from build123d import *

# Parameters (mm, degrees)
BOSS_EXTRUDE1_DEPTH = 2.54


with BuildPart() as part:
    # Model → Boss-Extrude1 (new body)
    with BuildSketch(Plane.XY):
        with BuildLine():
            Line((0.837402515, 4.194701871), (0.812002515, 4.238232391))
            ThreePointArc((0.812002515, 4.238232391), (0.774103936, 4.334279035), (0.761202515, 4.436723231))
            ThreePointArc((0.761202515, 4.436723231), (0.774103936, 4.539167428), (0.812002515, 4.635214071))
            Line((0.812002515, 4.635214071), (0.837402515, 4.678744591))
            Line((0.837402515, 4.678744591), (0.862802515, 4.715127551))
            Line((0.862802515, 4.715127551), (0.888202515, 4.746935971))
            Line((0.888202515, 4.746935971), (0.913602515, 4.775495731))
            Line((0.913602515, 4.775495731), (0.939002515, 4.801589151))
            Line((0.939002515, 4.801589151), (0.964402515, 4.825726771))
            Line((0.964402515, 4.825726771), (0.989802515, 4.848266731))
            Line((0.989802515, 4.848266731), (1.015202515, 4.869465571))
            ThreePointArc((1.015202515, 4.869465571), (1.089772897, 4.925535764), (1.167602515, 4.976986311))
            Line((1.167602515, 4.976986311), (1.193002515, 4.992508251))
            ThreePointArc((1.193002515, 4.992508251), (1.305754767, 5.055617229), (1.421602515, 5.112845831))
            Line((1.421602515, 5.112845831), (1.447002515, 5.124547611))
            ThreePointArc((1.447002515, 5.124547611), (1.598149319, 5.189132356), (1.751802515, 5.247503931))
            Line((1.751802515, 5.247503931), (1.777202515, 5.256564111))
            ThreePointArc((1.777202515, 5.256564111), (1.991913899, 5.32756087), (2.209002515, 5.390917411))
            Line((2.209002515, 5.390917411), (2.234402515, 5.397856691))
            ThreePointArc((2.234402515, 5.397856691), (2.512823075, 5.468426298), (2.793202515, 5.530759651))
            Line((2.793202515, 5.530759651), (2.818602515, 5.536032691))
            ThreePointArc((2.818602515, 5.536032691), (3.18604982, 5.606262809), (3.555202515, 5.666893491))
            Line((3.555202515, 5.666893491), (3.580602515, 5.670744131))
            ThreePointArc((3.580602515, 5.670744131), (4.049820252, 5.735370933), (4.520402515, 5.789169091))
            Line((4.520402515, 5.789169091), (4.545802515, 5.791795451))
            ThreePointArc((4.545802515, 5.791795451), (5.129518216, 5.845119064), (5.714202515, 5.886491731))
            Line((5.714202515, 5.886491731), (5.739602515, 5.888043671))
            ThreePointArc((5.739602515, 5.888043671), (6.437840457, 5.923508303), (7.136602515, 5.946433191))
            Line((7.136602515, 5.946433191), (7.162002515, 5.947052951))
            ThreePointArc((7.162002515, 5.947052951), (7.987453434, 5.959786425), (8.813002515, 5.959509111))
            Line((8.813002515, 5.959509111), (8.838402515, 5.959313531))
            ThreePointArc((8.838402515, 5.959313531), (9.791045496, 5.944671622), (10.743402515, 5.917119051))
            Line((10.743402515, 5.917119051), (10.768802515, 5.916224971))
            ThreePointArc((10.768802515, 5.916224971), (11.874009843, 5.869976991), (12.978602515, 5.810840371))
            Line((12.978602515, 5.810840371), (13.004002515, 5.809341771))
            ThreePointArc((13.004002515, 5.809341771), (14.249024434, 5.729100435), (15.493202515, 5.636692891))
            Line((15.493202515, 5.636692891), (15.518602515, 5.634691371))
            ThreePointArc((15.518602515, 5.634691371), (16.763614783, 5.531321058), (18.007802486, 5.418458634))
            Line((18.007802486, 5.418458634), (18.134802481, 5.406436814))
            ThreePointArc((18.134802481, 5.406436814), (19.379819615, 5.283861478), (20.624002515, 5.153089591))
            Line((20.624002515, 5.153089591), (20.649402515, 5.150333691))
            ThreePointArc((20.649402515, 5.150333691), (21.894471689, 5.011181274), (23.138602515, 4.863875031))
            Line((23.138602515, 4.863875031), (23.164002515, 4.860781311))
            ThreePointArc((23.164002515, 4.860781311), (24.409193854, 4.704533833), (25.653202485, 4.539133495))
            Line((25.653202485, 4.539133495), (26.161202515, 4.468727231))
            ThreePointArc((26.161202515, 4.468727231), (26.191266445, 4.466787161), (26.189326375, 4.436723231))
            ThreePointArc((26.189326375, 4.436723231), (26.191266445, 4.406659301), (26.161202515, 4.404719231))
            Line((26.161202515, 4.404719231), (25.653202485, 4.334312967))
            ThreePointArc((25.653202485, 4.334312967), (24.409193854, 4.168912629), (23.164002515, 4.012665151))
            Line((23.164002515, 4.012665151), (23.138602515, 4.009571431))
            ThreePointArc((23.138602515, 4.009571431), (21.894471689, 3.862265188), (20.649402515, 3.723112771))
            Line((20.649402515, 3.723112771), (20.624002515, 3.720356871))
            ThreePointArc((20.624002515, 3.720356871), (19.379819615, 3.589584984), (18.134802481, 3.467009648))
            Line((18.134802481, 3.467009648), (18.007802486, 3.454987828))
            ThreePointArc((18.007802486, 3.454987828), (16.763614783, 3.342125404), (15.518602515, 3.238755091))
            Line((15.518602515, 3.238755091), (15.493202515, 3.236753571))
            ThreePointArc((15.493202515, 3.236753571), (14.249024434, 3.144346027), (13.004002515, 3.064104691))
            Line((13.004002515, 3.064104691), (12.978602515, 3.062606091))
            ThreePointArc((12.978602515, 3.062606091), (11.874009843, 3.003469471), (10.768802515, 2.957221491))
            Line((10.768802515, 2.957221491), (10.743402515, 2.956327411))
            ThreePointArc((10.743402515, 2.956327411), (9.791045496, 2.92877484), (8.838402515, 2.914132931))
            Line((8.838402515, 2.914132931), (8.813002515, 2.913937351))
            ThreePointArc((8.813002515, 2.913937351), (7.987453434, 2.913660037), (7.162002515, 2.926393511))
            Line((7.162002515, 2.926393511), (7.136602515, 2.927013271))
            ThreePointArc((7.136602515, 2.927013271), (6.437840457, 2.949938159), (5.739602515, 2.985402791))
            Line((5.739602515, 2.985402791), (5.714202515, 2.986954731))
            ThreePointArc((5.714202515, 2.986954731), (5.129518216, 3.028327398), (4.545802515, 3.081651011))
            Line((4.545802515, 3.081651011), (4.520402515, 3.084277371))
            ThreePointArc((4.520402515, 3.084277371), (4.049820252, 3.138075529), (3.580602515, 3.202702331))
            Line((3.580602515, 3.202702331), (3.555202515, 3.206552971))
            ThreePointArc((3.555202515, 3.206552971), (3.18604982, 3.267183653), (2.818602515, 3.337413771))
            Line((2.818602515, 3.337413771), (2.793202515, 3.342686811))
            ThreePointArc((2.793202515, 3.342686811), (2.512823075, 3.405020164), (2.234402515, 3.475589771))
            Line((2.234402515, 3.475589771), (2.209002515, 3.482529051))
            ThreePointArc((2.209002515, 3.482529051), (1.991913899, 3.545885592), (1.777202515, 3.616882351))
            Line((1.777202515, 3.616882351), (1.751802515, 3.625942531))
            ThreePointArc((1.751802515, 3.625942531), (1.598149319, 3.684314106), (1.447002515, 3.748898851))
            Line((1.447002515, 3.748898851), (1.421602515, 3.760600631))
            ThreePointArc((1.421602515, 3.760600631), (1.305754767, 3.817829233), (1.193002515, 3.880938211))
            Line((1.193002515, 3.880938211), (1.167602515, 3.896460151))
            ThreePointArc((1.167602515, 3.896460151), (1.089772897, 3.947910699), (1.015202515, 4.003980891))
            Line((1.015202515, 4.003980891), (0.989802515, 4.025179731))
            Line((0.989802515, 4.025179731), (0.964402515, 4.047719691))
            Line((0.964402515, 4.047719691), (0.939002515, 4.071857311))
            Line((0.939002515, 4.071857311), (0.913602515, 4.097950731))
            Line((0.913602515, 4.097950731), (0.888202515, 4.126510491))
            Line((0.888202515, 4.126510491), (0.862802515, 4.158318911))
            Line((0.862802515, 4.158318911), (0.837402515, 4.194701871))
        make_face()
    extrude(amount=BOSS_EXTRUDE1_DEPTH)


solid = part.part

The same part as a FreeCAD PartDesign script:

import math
import FreeCAD as App
import Part
import Sketcher
from FreeCAD import Vector
Q = App.Units.Quantity

doc = App.newDocument("Part")
body = doc.addObject("PartDesign::Body", "Body")

sketch1 = body.newObject("Sketcher::SketchObject", "Sketch")
sketch1.AttachmentSupport = (doc.getObject("XY_Plane"), [""])
sketch1.MapMode = "FlatFace"
sketch1.addGeometry([
    Part.LineSegment(Vector(0.812003, 4.238232, 0), Vector(0.837403, 4.194702, 0)),
    Part.LineSegment(Vector(0.837403, 4.194702, 0), Vector(0.862803, 4.158319, 0)),
    Part.LineSegment(Vector(0.862803, 4.158319, 0), Vector(0.888203, 4.12651, 0)),
    Part.LineSegment(Vector(0.888203, 4.12651, 0), Vector(0.913603, 4.097951, 0)),
    Part.LineSegment(Vector(0.913603, 4.097951, 0), Vector(0.939003, 4.071857, 0)),
    Part.LineSegment(Vector(0.939003, 4.071857, 0), Vector(0.964403, 4.04772, 0)),
    Part.LineSegment(Vector(0.964403, 4.04772, 0), Vector(0.989803, 4.02518, 0)),
    Part.LineSegment(Vector(0.989803, 4.02518, 0), Vector(1.015203, 4.003981, 0)),
    Part.ArcOfCircle(Part.Circle(Vector(1.977353, 5.205968, 0), Vector(0, 0, 1), 1.539645), math.radians(-128.676114), math.radians(-121.731099)),
    Part.LineSegment(Vector(1.167603, 3.89646, 0), Vector(1.193003, 3.880938, 0)),
    Part.ArcOfCircle(Part.Circle(Vector(2.476061, 6.041009, 0), Vector(0, 0, 1), 2.512399), math.radians(-120.709855), math.radians(-114.815779)),
    Part.LineSegment(Vector(1.421603, 3.760601, 0), Vector(1.447003, 3.748899, 0)),
    Part.ArcOfCircle(Part.Circle(Vector(3.106746, 7.424017, 0), Vector(0, 0, 1), 4.032523), math.radians(-114.304707), math.radians(-109.63359)),
    Part.LineSegment(Vector(1.751803, 3.625943, 0), Vector(1.777203, 3.616882, 0)),
    Part.ArcOfCircle(Part.Circle(Vector(3.89081, 9.648775, 0), Vector(0, 0, 1), 6.391483), math.radians(-109.310734), math.radians(-105.256018)),
    Part.LineSegment(Vector(2.209003, 3.482529, 0), Vector(2.234403, 3.47559, 0)),
    Part.ArcOfCircle(Part.Circle(Vector(4.767559, 12.885218, 0), Vector(0, 0, 1), 9.744639), math.radians(-105.067324), math.radians(-101.689597)),
    Part.LineSegment(Vector(2.793203, 3.342687, 0), Vector(2.818603, 3.337414, 0)),
    Part.ArcOfCircle(Part.Circle(Vector(5.696834, 17.40009, 0), Vector(0, 0, 1), 14.3542), math.radians(-101.567071), math.radians(-98.580506)),
    Part.LineSegment(Vector(3.555203, 3.206553, 0), Vector(3.580603, 3.202702, 0)),
    Part.ArcOfCircle(Part.Circle(Vector(6.619638, 23.531702, 0), Vector(0, 0, 1), 20.554902), math.radians(-98.502332), math.radians(-95.861735)),
    Part.LineSegment(Vector(4.520403, 3.084277, 0), Vector(4.545803, 3.081651, 0)),
    Part.ArcOfCircle(Part.Circle(Vector(7.444287, 31.588857, 0), Vector(0, 0, 1), 28.65418), math.radians(-95.805626), math.radians(-93.461515)),
    Part.LineSegment(Vector(5.714203, 2.986955, 0), Vector(5.739603, 2.985403, 0)),
    Part.ArcOfCircle(Part.Circle(Vector(8.064204, 41.861543, 0), Vector(0, 0, 1), 38.945578), math.radians(-93.421931), math.radians(-91.364794)),
    Part.LineSegment(Vector(7.136603, 2.927013, 0), Vector(7.162003, 2.926394, 0)),
    Part.ArcOfCircle(Part.Circle(Vector(8.382633, 55.292699, 0), Vector(0, 0, 1), 52.38053), math.radians(-91.335292), math.radians(-89.529241)),
    Part.LineSegment(Vector(8.813003, 2.913937, 0), Vector(8.838403, 2.914133, 0)),
    Part.ArcOfCircle(Part.Circle(Vector(8.234499, 73.203864, 0), Vector(0, 0, 1), 70.292325), math.radians(-89.507748), math.radians(-87.95454)),
    Part.LineSegment(Vector(10.743403, 2.956327, 0), Vector(10.768803, 2.957221, 0)),
    Part.ArcOfCircle(Part.Circle(Vector(7.356722, 97.726073, 0), Vector(0, 0, 1), 94.830256), math.radians(-87.937999), math.radians(-86.601306)),
    Part.LineSegment(Vector(12.978603, 3.062606, 0), Vector(13.004003, 3.064105, 0)),
    Part.ArcOfCircle(Part.Circle(Vector(5.417845, 130.469653, 0), Vector(0, 0, 1), 127.631201), math.radians(-86.592439), math.radians(-85.472293)),
    Part.LineSegment(Vector(15.493203, 3.236754, 0), Vector(15.518603, 3.238755, 0)),
    Part.ArcOfCircle(Part.Circle(Vector(2.587254, 166.535712, 0), Vector(0, 0, 1), 163.808168), math.radians(-85.472244), math.radians(-84.5983)),
    Part.LineSegment(Vector(18.007802, 3.454988, 0), Vector(18.134802, 3.46701, 0)),
    Part.ArcOfCircle(Part.Circle(Vector(0.144938, 192.577122, 0), Vector(0, 0, 1), 189.963864), math.radians(-84.56586), math.radians(-83.811198)),
    Part.LineSegment(Vector(20.624003, 3.720357, 0), Vector(20.649403, 3.723113, 0)),
    Part.ArcOfCircle(Part.Circle(Vector(0.031712, 193.840046, 0), Vector(0, 0, 1), 191.231633), math.radians(-83.810609), math.radians(-83.059881)),
    Part.LineSegment(Vector(23.138603, 4.009571, 0), Vector(23.164003, 4.012665, 0)),
    Part.ArcOfCircle(Part.Circle(Vector(2.540167, 173.411103, 0), Vector(0, 0, 1), 170.64927), math.radians(-83.058544), math.radians(-82.215835)),
    Part.LineSegment(Vector(25.653202, 4.334313, 0), Vector(26.161203, 4.404719, 0)),
    Part.ArcOfCircle(Part.Circle(Vector(26.175264, 4.420721, 0), Vector(0, 0, 1), 0.021303), math.radians(-131.307738), math.radians(48.692262)),
    Part.ArcOfCircle(Part.Circle(Vector(26.175264, 4.452725, 0), Vector(0, 0, 1), 0.021303), math.radians(-48.692262), math.radians(131.307738)),
    Part.LineSegment(Vector(26.161203, 4.468727, 0), Vector(25.653202, 4.539133, 0)),
    Part.ArcOfCircle(Part.Circle(Vector(2.540167, -164.537656, 0), Vector(0, 0, 1), 170.64927), math.radians(82.215835), math.radians(83.058544)),
    Part.LineSegment(Vector(23.164003, 4.860781, 0), Vector(23.138603, 4.863875, 0)),
    Part.ArcOfCircle(Part.Circle(Vector(0.031712, -184.966599, 0), Vector(0, 0, 1), 191.231633), math.radians(83.059881), math.radians(83.810609)),
    Part.LineSegment(Vector(20.649403, 5.150334, 0), Vector(20.624003, 5.15309, 0)),
    Part.ArcOfCircle(Part.Circle(Vector(0.144938, -183.703675, 0), Vector(0, 0, 1), 189.963864), math.radians(83.811198), math.radians(84.56586)),
    Part.LineSegment(Vector(18.134802, 5.406437, 0), Vector(18.007802, 5.418459, 0)),
    Part.ArcOfCircle(Part.Circle(Vector(2.587254, -157.662265, 0), Vector(0, 0, 1), 163.808168), math.radians(84.5983), math.radians(85.472244)),
    Part.LineSegment(Vector(15.518603, 5.634691, 0), Vector(15.493203, 5.636693, 0)),
    Part.ArcOfCircle(Part.Circle(Vector(5.417845, -121.596206, 0), Vector(0, 0, 1), 127.631201), math.radians(85.472293), math.radians(86.592439)),
    Part.LineSegment(Vector(13.004003, 5.809342, 0), Vector(12.978603, 5.81084, 0)),
    Part.ArcOfCircle(Part.Circle(Vector(7.356722, -88.852626, 0), Vector(0, 0, 1), 94.830256), math.radians(86.601306), math.radians(87.937999)),
    Part.LineSegment(Vector(10.768803, 5.916225, 0), Vector(10.743403, 5.917119, 0)),
    Part.ArcOfCircle(Part.Circle(Vector(8.234499, -64.330417, 0), Vector(0, 0, 1), 70.292325), math.radians(87.95454), math.radians(89.507748)),
    Part.LineSegment(Vector(8.838403, 5.959314, 0), Vector(8.813003, 5.959509, 0)),
    Part.ArcOfCircle(Part.Circle(Vector(8.382633, -46.419252, 0), Vector(0, 0, 1), 52.38053), math.radians(89.529241), math.radians(91.335292)),
    Part.LineSegment(Vector(7.162003, 5.947053, 0), Vector(7.136603, 5.946433, 0)),
    Part.ArcOfCircle(Part.Circle(Vector(8.064204, -32.988096, 0), Vector(0, 0, 1), 38.945578), math.radians(91.364794), math.radians(93.421931)),
    Part.LineSegment(Vector(5.739603, 5.888044, 0), Vector(5.714203, 5.886492, 0)),
    Part.ArcOfCircle(Part.Circle(Vector(7.444287, -22.715411, 0), Vector(0, 0, 1), 28.65418), math.radians(93.461515), math.radians(95.805626)),
    Part.LineSegment(Vector(4.545803, 5.791795, 0), Vector(4.520403, 5.789169, 0)),
    Part.ArcOfCircle(Part.Circle(Vector(6.619638, -14.658256, 0), Vector(0, 0, 1), 20.554902), math.radians(95.861735), math.radians(98.502332)),
    Part.LineSegment(Vector(3.580603, 5.670744, 0), Vector(3.555203, 5.666893, 0)),
    Part.ArcOfCircle(Part.Circle(Vector(5.696834, -8.526643, 0), Vector(0, 0, 1), 14.3542), math.radians(98.580506), math.radians(101.567071)),
    Part.LineSegment(Vector(2.818603, 5.536033, 0), Vector(2.793203, 5.53076, 0)),
    Part.ArcOfCircle(Part.Circle(Vector(4.767559, -4.011772, 0), Vector(0, 0, 1), 9.744639), math.radians(101.689597), math.radians(105.067324)),
    Part.LineSegment(Vector(2.234403, 5.397857, 0), Vector(2.209003, 5.390917, 0)),
    Part.ArcOfCircle(Part.Circle(Vector(3.89081, -0.775328, 0), Vector(0, 0, 1), 6.391483), math.radians(105.256018), math.radians(109.310734)),
    Part.LineSegment(Vector(1.777203, 5.256564, 0), Vector(1.751803, 5.247504, 0)),
    Part.ArcOfCircle(Part.Circle(Vector(3.106746, 1.449429, 0), Vector(0, 0, 1), 4.032523), math.radians(109.63359), math.radians(114.304707)),
    Part.LineSegment(Vector(1.447003, 5.124548, 0), Vector(1.421603, 5.112846, 0)),
    Part.ArcOfCircle(Part.Circle(Vector(2.476061, 2.832437, 0), Vector(0, 0, 1), 2.512399), math.radians(114.815779), math.radians(120.709855)),
    Part.LineSegment(Vector(1.193003, 4.992508, 0), Vector(1.167603, 4.976986, 0)),
    Part.ArcOfCircle(Part.Circle(Vector(1.977353, 3.667479, 0), Vector(0, 0, 1), 1.539644), math.radians(121.731098), math.radians(128.676115)),
    Part.LineSegment(Vector(1.015203, 4.869466, 0), Vector(0.989803, 4.848267, 0)),
    Part.LineSegment(Vector(0.989803, 4.848267, 0), Vector(0.964403, 4.825727, 0)),
    Part.LineSegment(Vector(0.964403, 4.825727, 0), Vector(0.939003, 4.801589, 0)),
    Part.LineSegment(Vector(0.939003, 4.801589, 0), Vector(0.913603, 4.775496, 0)),
    Part.LineSegment(Vector(0.913603, 4.775496, 0), Vector(0.888203, 4.746936, 0)),
    Part.LineSegment(Vector(0.888203, 4.746936, 0), Vector(0.862803, 4.715128, 0)),
    Part.LineSegment(Vector(0.862803, 4.715128, 0), Vector(0.837403, 4.678745, 0)),
    Part.LineSegment(Vector(0.837403, 4.678745, 0), Vector(0.812003, 4.635214, 0)),
    Part.ArcOfCircle(Part.Circle(Vector(1.174384, 4.436723, 0), Vector(0, 0, 1), 0.413182), math.radians(151.288726), math.radians(180)),
    Part.ArcOfCircle(Part.Circle(Vector(1.174384, 4.436723, 0), Vector(0, 0, 1), 0.413182), math.radians(-180), math.radians(-151.288726)),
], False)
sketch1.addConstraint([
    Sketcher.Constraint("Coincident", 0, 2, 1, 1),
    Sketcher.Constraint("Coincident", 1, 2, 2, 1),
    Sketcher.Constraint("Coincident", 2, 2, 3, 1),
    Sketcher.Constraint("Coincident", 3, 2, 4, 1),
    Sketcher.Constraint("Coincident", 4, 2, 5, 1),
    Sketcher.Constraint("Coincident", 5, 2, 6, 1),
    Sketcher.Constraint("Coincident", 6, 2, 7, 1),
    Sketcher.Constraint("Coincident", 7, 2, 8, 1),
    Sketcher.Constraint("Coincident", 8, 2, 9, 1),
    Sketcher.Constraint("Coincident", 9, 2, 10, 1),
    Sketcher.Constraint("Coincident", 10, 2, 11, 1),
    Sketcher.Constraint("Coincident", 11, 2, 12, 1),
    Sketcher.Constraint("Coincident", 12, 2, 13, 1),
    Sketcher.Constraint("Coincident", 13, 2, 14, 1),
    Sketcher.Constraint("Coincident", 14, 2, 15, 1),
    Sketcher.Constraint("Coincident", 15, 2, 16, 1),
    Sketcher.Constraint("Coincident", 16, 2, 17, 1),
    Sketcher.Constraint("Coincident", 17, 2, 18, 1),
    Sketcher.Constraint("Coincident", 18, 2, 19, 1),
    Sketcher.Constraint("Coincident", 19, 2, 20, 1),
    Sketcher.Constraint("Coincident", 20, 2, 21, 1),
    Sketcher.Constraint("Coincident", 21, 2, 22, 1),
    Sketcher.Constraint("Coincident", 22, 2, 23, 1),
    Sketcher.Constraint("Coincident", 23, 2, 24, 1),
    Sketcher.Constraint("Coincident", 24, 2, 25, 1),
    Sketcher.Constraint("Coincident", 25, 2, 26, 1),
    Sketcher.Constraint("Coincident", 26, 2, 27, 1),
    Sketcher.Constraint("Coincident", 27, 2, 28, 1),
    Sketcher.Constraint("Coincident", 28, 2, 29, 1),
    Sketcher.Constraint("Coincident", 29, 2, 30, 1),
    Sketcher.Constraint("Coincident", 30, 2, 31, 1),
    Sketcher.Constraint("Coincident", 31, 2, 32, 1),
    Sketcher.Constraint("Coincident", 32, 2, 33, 1),
    Sketcher.Constraint("Coincident", 33, 2, 34, 1),
    Sketcher.Constraint("Coincident", 34, 2, 35, 1),
    Sketcher.Constraint("Coincident", 35, 2, 36, 1),
    Sketcher.Constraint("Coincident", 36, 2, 37, 1),
    Sketcher.Constraint("Coincident", 37, 2, 38, 1),
    Sketcher.Constraint("Coincident", 38, 2, 39, 1),
    Sketcher.Constraint("Coincident", 39, 2, 40, 1),
    Sketcher.Constraint("Coincident", 40, 2, 41, 1),
    Sketcher.Constraint("Coincident", 41, 2, 42, 1),
    Sketcher.Constraint("Coincident", 42, 2, 43, 1),
    Sketcher.Constraint("Coincident", 43, 2, 44, 1),
    Sketcher.Constraint("Coincident", 44, 2, 45, 1),
    Sketcher.Constraint("Coincident", 45, 2, 46, 1),
    Sketcher.Constraint("Coincident", 46, 2, 47, 1),
    Sketcher.Constraint("Coincident", 47, 2, 48, 1),
    Sketcher.Constraint("Coincident", 48, 2, 49, 1),
    Sketcher.Constraint("Coincident", 49, 2, 50, 1),
    Sketcher.Constraint("Coincident", 50, 2, 51, 1),
    Sketcher.Constraint("Coincident", 51, 2, 52, 1),
    Sketcher.Constraint("Coincident", 52, 2, 53, 1),
    Sketcher.Constraint("Coincident", 53, 2, 54, 1),
    Sketcher.Constraint("Coincident", 54, 2, 55, 1),
    Sketcher.Constraint("Coincident", 55, 2, 56, 1),
    Sketcher.Constraint("Coincident", 56, 2, 57, 1),
    Sketcher.Constraint("Coincident", 57, 2, 58, 1),
    Sketcher.Constraint("Coincident", 58, 2, 59, 1),
    Sketcher.Constraint("Coincident", 59, 2, 60, 1),
    Sketcher.Constraint("Coincident", 60, 2, 61, 1),
    Sketcher.Constraint("Coincident", 61, 2, 62, 1),
    Sketcher.Constraint("Coincident", 62, 2, 63, 1),
    Sketcher.Constraint("Coincident", 63, 2, 64, 1),
    Sketcher.Constraint("Coincident", 64, 2, 65, 1),
    Sketcher.Constraint("Coincident", 65, 2, 66, 1),
    Sketcher.Constraint("Coincident", 66, 2, 67, 1),
    Sketcher.Constraint("Coincident", 67, 2, 68, 1),
    Sketcher.Constraint("Coincident", 68, 2, 69, 1),
    Sketcher.Constraint("Coincident", 69, 2, 70, 1),
    Sketcher.Constraint("Coincident", 70, 2, 71, 1),
    Sketcher.Constraint("Coincident", 71, 2, 72, 1),
    Sketcher.Constraint("Coincident", 72, 2, 73, 1),
    Sketcher.Constraint("Coincident", 73, 2, 74, 1),
    Sketcher.Constraint("Coincident", 74, 2, 75, 1),
    Sketcher.Constraint("Coincident", 75, 2, 76, 1),
    Sketcher.Constraint("Coincident", 76, 2, 77, 1),
    Sketcher.Constraint("Coincident", 77, 2, 78, 1),
    Sketcher.Constraint("Coincident", 78, 2, 79, 1),
    Sketcher.Constraint("Coincident", 79, 2, 80, 1),
    Sketcher.Constraint("Coincident", 80, 2, 81, 1),
    Sketcher.Constraint("Coincident", 81, 2, 82, 1),
    Sketcher.Constraint("Coincident", 82, 2, 83, 1),
    Sketcher.Constraint("Coincident", 83, 2, 84, 1),
    Sketcher.Constraint("Coincident", 84, 2, 85, 1),
    Sketcher.Constraint("Coincident", 85, 2, 86, 1),
    Sketcher.Constraint("Tangent", 86, 2, 87, 1),
    Sketcher.Constraint("Coincident", 87, 2, 0, 1),
    Sketcher.Constraint("Equal", 42, 43),
    Sketcher.Constraint("Equal", 40, 45),
    Sketcher.Constraint("Equal", 38, 47),
    Sketcher.Constraint("Equal", 36, 49),
    Sketcher.Constraint("Equal", 34, 51),
    Sketcher.Constraint("Equal", 32, 53),
    Sketcher.Constraint("Equal", 30, 55),
    Sketcher.Constraint("Equal", 28, 57),
    Sketcher.Constraint("Equal", 26, 59),
    Sketcher.Constraint("Equal", 24, 61),
    Sketcher.Constraint("Equal", 22, 63),
    Sketcher.Constraint("Equal", 20, 65),
    Sketcher.Constraint("Equal", 18, 67),
    Sketcher.Constraint("Equal", 16, 69),
    Sketcher.Constraint("Equal", 14, 71),
    Sketcher.Constraint("Equal", 12, 73),
    Sketcher.Constraint("Equal", 10, 75),
    Sketcher.Constraint("Equal", 8, 77),
    Sketcher.Constraint("Equal", 86, 87),
    Sketcher.Constraint("Horizontal", 87, 3, 42, 2),
    Sketcher.Constraint("Horizontal", 42, 2, 86, 2),
    Sketcher.Constraint("Vertical", 42, 3, 43, 3),
    Sketcher.Constraint("Vertical", 40, 3, 45, 3),
    Sketcher.Constraint("Vertical", 38, 3, 47, 3),
    Sketcher.Constraint("Vertical", 36, 3, 49, 3),
    Sketcher.Constraint("Vertical", 34, 3, 51, 3),
    Sketcher.Constraint("Vertical", 32, 3, 53, 3),
    Sketcher.Constraint("Vertical", 30, 3, 55, 3),
    Sketcher.Constraint("Vertical", 28, 3, 57, 3),
    Sketcher.Constraint("Vertical", 26, 3, 59, 3),
    Sketcher.Constraint("Vertical", 24, 3, 61, 3),
    Sketcher.Constraint("Vertical", 22, 3, 63, 3),
    Sketcher.Constraint("Vertical", 20, 3, 65, 3),
    Sketcher.Constraint("Vertical", 18, 3, 67, 3),
    Sketcher.Constraint("Vertical", 16, 3, 69, 3),
    Sketcher.Constraint("Vertical", 14, 3, 71, 3),
    Sketcher.Constraint("Vertical", 12, 3, 73, 3),
    Sketcher.Constraint("Vertical", 10, 3, 75, 3),
    Sketcher.Constraint("Vertical", 8, 3, 77, 3),
    Sketcher.Constraint("Vertical", 41, 2, 43, 2),
    Sketcher.Constraint("Vertical", 40, 2, 44, 2),
    Sketcher.Constraint("Vertical", 39, 2, 45, 2),
    Sketcher.Constraint("Vertical", 38, 2, 46, 2),
    Sketcher.Constraint("Vertical", 37, 2, 47, 2),
    Sketcher.Constraint("Vertical", 36, 2, 48, 2),
    Sketcher.Constraint("Vertical", 35, 2, 49, 2),
    Sketcher.Constraint("Vertical", 34, 2, 50, 2),
    Sketcher.Constraint("Vertical", 33, 2, 51, 2),
    Sketcher.Constraint("Vertical", 32, 2, 52, 2),
    Sketcher.Constraint("Vertical", 31, 2, 53, 2),
    Sketcher.Constraint("Vertical", 30, 2, 54, 2),
    Sketcher.Constraint("Vertical", 29, 2, 55, 2),
    Sketcher.Constraint("Vertical", 28, 2, 56, 2),
    Sketcher.Constraint("Vertical", 27, 2, 57, 2),
    Sketcher.Constraint("Vertical", 26, 2, 58, 2),
    Sketcher.Constraint("Vertical", 25, 2, 59, 2),
    Sketcher.Constraint("Vertical", 24, 2, 60, 2),
    Sketcher.Constraint("Vertical", 23, 2, 61, 2),
    Sketcher.Constraint("Vertical", 22, 2, 62, 2),
    Sketcher.Constraint("Vertical", 21, 2, 63, 2),
    Sketcher.Constraint("Vertical", 20, 2, 64, 2),
    Sketcher.Constraint("Vertical", 19, 2, 65, 2),
    Sketcher.Constraint("Vertical", 18, 2, 66, 2),
    Sketcher.Constraint("Vertical", 17, 2, 67, 2),
    Sketcher.Constraint("Vertical", 16, 2, 68, 2),
    Sketcher.Constraint("Vertical", 15, 2, 69, 2),
    Sketcher.Constraint("Vertical", 14, 2, 70, 2),
    Sketcher.Constraint("Vertical", 13, 2, 71, 2),
    Sketcher.Constraint("Vertical", 12, 2, 72, 2),
    Sketcher.Constraint("Vertical", 11, 2, 73, 2),
    Sketcher.Constraint("Vertical", 10, 2, 74, 2),
    Sketcher.Constraint("Vertical", 9, 2, 75, 2),
    Sketcher.Constraint("Vertical", 8, 2, 76, 2),
    Sketcher.Constraint("Vertical", 7, 2, 77, 2),
    Sketcher.Constraint("Vertical", 6, 2, 78, 2),
    Sketcher.Constraint("Vertical", 5, 2, 79, 2),
    Sketcher.Constraint("Vertical", 4, 2, 80, 2),
    Sketcher.Constraint("Vertical", 3, 2, 81, 2),
    Sketcher.Constraint("Vertical", 2, 2, 82, 2),
    Sketcher.Constraint("Vertical", 1, 2, 83, 2),
    Sketcher.Constraint("Vertical", 0, 2, 84, 2),
    Sketcher.Constraint("Vertical", 85, 2, 87, 2),
    Sketcher.Constraint("Equal", 41, 44),
    Sketcher.Constraint("Equal", 39, 46),
    Sketcher.Constraint("Equal", 37, 48),
    Sketcher.Constraint("Equal", 35, 50),
    Sketcher.Constraint("Equal", 33, 52),
    Sketcher.Constraint("Equal", 31, 54),
    Sketcher.Constraint("Equal", 29, 56),
    Sketcher.Constraint("Equal", 27, 58),
    Sketcher.Constraint("Equal", 25, 60),
    Sketcher.Constraint("Equal", 23, 62),
    Sketcher.Constraint("Equal", 21, 64),
    Sketcher.Constraint("Equal", 19, 66),
    Sketcher.Constraint("Equal", 17, 68),
    Sketcher.Constraint("Equal", 15, 70),
    Sketcher.Constraint("Equal", 13, 72),
    Sketcher.Constraint("Equal", 11, 74),
    Sketcher.Constraint("Equal", 9, 76),
    Sketcher.Constraint("Equal", 7, 78),
    Sketcher.Constraint("Equal", 6, 79),
    Sketcher.Constraint("Equal", 5, 80),
    Sketcher.Constraint("Equal", 4, 81),
    Sketcher.Constraint("Equal", 3, 82),
    Sketcher.Constraint("Equal", 2, 83),
    Sketcher.Constraint("Equal", 1, 84),
    Sketcher.Constraint("Angle", 1, Q("-55.079989 deg")),
    Sketcher.Constraint("Radius", 10, Q("2.512399 mm")),
    Sketcher.Constraint("Radius", 18, Q("14.3542 mm")),
    Sketcher.Constraint("Radius", 20, Q("20.554902 mm")),
    Sketcher.Constraint("Radius", 32, Q("127.631201 mm")),
    Sketcher.Constraint("Distance", 27, Q("0.001 in")),
    Sketcher.Constraint("Radius", 16, Q("9.744639 mm")),
    Sketcher.Constraint("Radius", 22, Q("28.65418 mm")),
    Sketcher.Constraint("Radius", 26, Q("52.38053 mm")),
    Sketcher.Constraint("Radius", 40, Q("170.64927 mm")),
    Sketcher.Constraint("Radius", 86, Q("0.413182 mm")),
    Sketcher.Constraint("Radius", 8, Q("1.539645 mm")),
    Sketcher.Constraint("Radius", 12, Q("4.032523 mm")),
    Sketcher.Constraint("Radius", 14, Q("6.391483 mm")),
    Sketcher.Constraint("Radius", 24, Q("38.945578 mm")),
    Sketcher.Constraint("Radius", 28, Q("70.292325 mm")),
    Sketcher.Constraint("Radius", 30, Q("94.830256 mm")),
    Sketcher.Constraint("Radius", 34, Q("163.808168 mm")),
    Sketcher.Constraint("Radius", 36, Q("189.963864 mm")),
    Sketcher.Constraint("Radius", 38, Q("191.231633 mm")),
    Sketcher.Constraint("Radius", 42, Q("0.021303 mm")),
    Sketcher.Constraint("Distance", 0, Q("0.050399 mm")),
    Sketcher.Constraint("DistanceY", -1, 1, 26, 3, Q("55.292699 mm")),
    Sketcher.Constraint("DistanceX", -1, 1, 28, 3, Q("8.234499 mm")),
    Sketcher.Constraint("DistanceY", 47, 3, -1, 1, Q("184.966599 mm")),
    Sketcher.Constraint("DistanceY", -1, 1, 0, 2, Q("4.194702 mm")),
    Sketcher.Constraint("DistanceY", -1, 1, 10, 2, Q("3.760601 mm")),
    Sketcher.Constraint("DistanceY", -1, 1, 11, 2, Q("3.748899 mm")),
    Sketcher.Constraint("Distance", 3, Q("0.038221 mm")),
    Sketcher.Constraint("Distance", 5, Q("0.03504 mm")),
    Sketcher.Constraint("Distance", 6, Q("0.033959 mm")),
    Sketcher.Constraint("Distance", 15, Q("0.026331 mm")),
    Sketcher.Constraint("Distance", 17, Q("0.025942 mm")),
    Sketcher.Constraint("Distance", 19, Q("0.02569 mm")),
    Sketcher.Constraint("Distance", 33, Q("0.025479 mm")),
    Sketcher.Constraint("Distance", 37, Q("0.025549 mm")),
    Sketcher.Constraint("DistanceX", -1, 1, 10, 3, Q("2.476061 mm")),
    Sketcher.Constraint("DistanceY", -1, 1, 10, 3, Q("6.041009 mm")),
    Sketcher.Constraint("DistanceX", -1, 1, 14, 3, Q("3.89081 mm")),
    Sketcher.Constraint("DistanceX", -1, 1, 16, 3, Q("4.767559 mm")),
    Sketcher.Constraint("DistanceY", -1, 1, 16, 3, Q("12.885218 mm")),
    Sketcher.Constraint("DistanceY", -1, 1, 18, 3, Q("17.40009 mm")),
    Sketcher.Constraint("DistanceX", -1, 1, 30, 3, Q("7.356722 mm")),
    Sketcher.Constraint("DistanceY", -1, 1, 34, 3, Q("166.535712 mm")),
    Sketcher.Constraint("DistanceX", -1, 1, 36, 3, Q("0.144938 mm")),
    Sketcher.Constraint("DistanceY", -1, 1, 36, 3, Q("192.577122 mm")),
    Sketcher.Constraint("DistanceY", -1, 1, 42, 3, Q("4.420721 mm")),
    Sketcher.Constraint("DistanceY", 63, 3, -1, 1, Q("22.715411 mm")),
    Sketcher.Constraint("DistanceY", 69, 3, -1, 1, Q("4.011772 mm")),
    Sketcher.Constraint("DistanceY", 71, 3, -1, 1, Q("0.775328 mm")),
    Sketcher.Constraint("DistanceY", -1, 1, 73, 3, Q("1.449429 mm")),
    Sketcher.Constraint("DistanceY", -1, 1, 77, 3, Q("3.667479 mm")),
    Sketcher.Constraint("DistanceY", -1, 1, 1, 2, Q("4.158319 mm")),
    Sketcher.Constraint("DistanceY", -1, 1, 2, 2, Q("4.12651 mm")),
    Sketcher.Constraint("DistanceY", -1, 1, 3, 2, Q("4.097951 mm")),
    Sketcher.Constraint("DistanceY", -1, 1, 5, 2, Q("4.04772 mm")),
    Sketcher.Constraint("DistanceY", -1, 1, 6, 2, Q("4.02518 mm")),
    Sketcher.Constraint("DistanceY", -1, 1, 7, 2, Q("4.003981 mm")),
    Sketcher.Constraint("DistanceY", -1, 1, 8, 2, Q("3.89646 mm")),
    Sketcher.Constraint("DistanceY", -1, 1, 9, 2, Q("3.880938 mm")),
    Sketcher.Constraint("DistanceY", -1, 1, 14, 2, Q("3.482529 mm")),
    Sketcher.Constraint("DistanceY", -1, 1, 21, 2, Q("3.081651 mm")),
    Sketcher.Constraint("DistanceY", -1, 1, 29, 2, Q("2.957221 mm")),
    Sketcher.Constraint("DistanceY", -1, 1, 35, 2, Q("3.46701 mm")),
    Sketcher.Constraint("DistanceY", -1, 1, 38, 2, Q("4.009571 mm")),
    Sketcher.Constraint("DistanceY", -1, 1, 41, 2, Q("4.404719 mm")),
    Sketcher.Constraint("DistanceY", -1, 1, 45, 2, Q("4.860781 mm")),
    Sketcher.Constraint("DistanceY", -1, 1, 48, 2, Q("5.15309 mm")),
    Sketcher.Constraint("DistanceY", -1, 1, 50, 2, Q("5.418459 mm")),
    Sketcher.Constraint("DistanceY", -1, 1, 51, 2, Q("5.634691 mm")),
    Sketcher.Constraint("DistanceY", -1, 1, 53, 2, Q("5.809342 mm")),
    Sketcher.Constraint("DistanceY", -1, 1, 54, 2, Q("5.81084 mm")),
    Sketcher.Constraint("DistanceY", -1, 1, 56, 2, Q("5.917119 mm")),
    Sketcher.Constraint("DistanceY", -1, 1, 58, 2, Q("5.959509 mm")),
    Sketcher.Constraint("DistanceY", -1, 1, 62, 2, Q("5.886492 mm")),
    Sketcher.Constraint("DistanceY", -1, 1, 64, 2, Q("5.789169 mm")),
    Sketcher.Constraint("DistanceY", -1, 1, 68, 2, Q("5.53076 mm")),
    Sketcher.Constraint("DistanceY", -1, 1, 80, 2, Q("4.801589 mm")),
    Sketcher.Constraint("Distance", 2, Q("0.040705 mm")),
    Sketcher.Constraint("Distance", 4, Q("0.036415 mm")),
    Sketcher.Constraint("Distance", 7, Q("0.033084 mm")),
    Sketcher.Constraint("Distance", 9, Q("0.029767 mm")),
    Sketcher.Constraint("Distance", 11, Q("0.027966 mm")),
    Sketcher.Constraint("Distance", 13, Q("0.026968 mm")),
    Sketcher.Constraint("Distance", 21, Q("0.025535 mm")),
    Sketcher.Constraint("Distance", 23, Q("0.025447 mm")),
    Sketcher.Constraint("Distance", 25, Q("0.025408 mm")),
    Sketcher.Constraint("Distance", 29, Q("0.025416 mm")),
    Sketcher.Constraint("Distance", 31, Q("0.025444 mm")),
    Sketcher.Constraint("Distance", 35, Q("0.127568 mm")),
    Sketcher.Constraint("Distance", 39, Q("0.025588 mm")),
    Sketcher.Constraint("Distance", 41, Q("0.512856 mm")),
    Sketcher.Constraint("DistanceX", -1, 1, 18, 3, Q("5.696834 mm")),
    Sketcher.Constraint("DistanceX", -1, 1, 20, 3, Q("6.619638 mm")),
    Sketcher.Constraint("DistanceY", -1, 1, 20, 3, Q("23.531702 mm")),
    Sketcher.Constraint("DistanceX", -1, 1, 24, 3, Q("8.064204 mm")),
    Sketcher.Constraint("DistanceY", -1, 1, 24, 3, Q("41.861543 mm")),
    Sketcher.Constraint("DistanceX", -1, 1, 26, 3, Q("8.382633 mm")),
    Sketcher.Constraint("DistanceY", -1, 1, 28, 3, Q("73.203864 mm")),
    Sketcher.Constraint("DistanceX", -1, 1, 32, 3, Q("5.417845 mm")),
    Sketcher.Constraint("DistanceX", -1, 1, 38, 3, Q("0.031712 mm")),
    Sketcher.Constraint("DistanceX", -1, 1, 40, 3, Q("2.540167 mm")),
    Sketcher.Constraint("DistanceX", -1, 1, 42, 3, Q("26.175264 mm")),
    Sketcher.Constraint("DistanceX", -1, 1, 86, 3, Q("1.174384 mm")),
    Sketcher.Constraint("DistanceX", -1, 1, 12, 2, Q("1.751803 mm")),
    Sketcher.Constraint("DistanceX", -1, 1, 18, 2, Q("3.555203 mm")),
    Sketcher.Constraint("DistanceX", -1, 1, 24, 2, Q("7.136603 mm")),
])
pad1 = body.newObject("PartDesign::Pad", "Pad")
pad1.Profile = sketch1
pad1.Length = Q("0.1 in")

doc.recompute()
